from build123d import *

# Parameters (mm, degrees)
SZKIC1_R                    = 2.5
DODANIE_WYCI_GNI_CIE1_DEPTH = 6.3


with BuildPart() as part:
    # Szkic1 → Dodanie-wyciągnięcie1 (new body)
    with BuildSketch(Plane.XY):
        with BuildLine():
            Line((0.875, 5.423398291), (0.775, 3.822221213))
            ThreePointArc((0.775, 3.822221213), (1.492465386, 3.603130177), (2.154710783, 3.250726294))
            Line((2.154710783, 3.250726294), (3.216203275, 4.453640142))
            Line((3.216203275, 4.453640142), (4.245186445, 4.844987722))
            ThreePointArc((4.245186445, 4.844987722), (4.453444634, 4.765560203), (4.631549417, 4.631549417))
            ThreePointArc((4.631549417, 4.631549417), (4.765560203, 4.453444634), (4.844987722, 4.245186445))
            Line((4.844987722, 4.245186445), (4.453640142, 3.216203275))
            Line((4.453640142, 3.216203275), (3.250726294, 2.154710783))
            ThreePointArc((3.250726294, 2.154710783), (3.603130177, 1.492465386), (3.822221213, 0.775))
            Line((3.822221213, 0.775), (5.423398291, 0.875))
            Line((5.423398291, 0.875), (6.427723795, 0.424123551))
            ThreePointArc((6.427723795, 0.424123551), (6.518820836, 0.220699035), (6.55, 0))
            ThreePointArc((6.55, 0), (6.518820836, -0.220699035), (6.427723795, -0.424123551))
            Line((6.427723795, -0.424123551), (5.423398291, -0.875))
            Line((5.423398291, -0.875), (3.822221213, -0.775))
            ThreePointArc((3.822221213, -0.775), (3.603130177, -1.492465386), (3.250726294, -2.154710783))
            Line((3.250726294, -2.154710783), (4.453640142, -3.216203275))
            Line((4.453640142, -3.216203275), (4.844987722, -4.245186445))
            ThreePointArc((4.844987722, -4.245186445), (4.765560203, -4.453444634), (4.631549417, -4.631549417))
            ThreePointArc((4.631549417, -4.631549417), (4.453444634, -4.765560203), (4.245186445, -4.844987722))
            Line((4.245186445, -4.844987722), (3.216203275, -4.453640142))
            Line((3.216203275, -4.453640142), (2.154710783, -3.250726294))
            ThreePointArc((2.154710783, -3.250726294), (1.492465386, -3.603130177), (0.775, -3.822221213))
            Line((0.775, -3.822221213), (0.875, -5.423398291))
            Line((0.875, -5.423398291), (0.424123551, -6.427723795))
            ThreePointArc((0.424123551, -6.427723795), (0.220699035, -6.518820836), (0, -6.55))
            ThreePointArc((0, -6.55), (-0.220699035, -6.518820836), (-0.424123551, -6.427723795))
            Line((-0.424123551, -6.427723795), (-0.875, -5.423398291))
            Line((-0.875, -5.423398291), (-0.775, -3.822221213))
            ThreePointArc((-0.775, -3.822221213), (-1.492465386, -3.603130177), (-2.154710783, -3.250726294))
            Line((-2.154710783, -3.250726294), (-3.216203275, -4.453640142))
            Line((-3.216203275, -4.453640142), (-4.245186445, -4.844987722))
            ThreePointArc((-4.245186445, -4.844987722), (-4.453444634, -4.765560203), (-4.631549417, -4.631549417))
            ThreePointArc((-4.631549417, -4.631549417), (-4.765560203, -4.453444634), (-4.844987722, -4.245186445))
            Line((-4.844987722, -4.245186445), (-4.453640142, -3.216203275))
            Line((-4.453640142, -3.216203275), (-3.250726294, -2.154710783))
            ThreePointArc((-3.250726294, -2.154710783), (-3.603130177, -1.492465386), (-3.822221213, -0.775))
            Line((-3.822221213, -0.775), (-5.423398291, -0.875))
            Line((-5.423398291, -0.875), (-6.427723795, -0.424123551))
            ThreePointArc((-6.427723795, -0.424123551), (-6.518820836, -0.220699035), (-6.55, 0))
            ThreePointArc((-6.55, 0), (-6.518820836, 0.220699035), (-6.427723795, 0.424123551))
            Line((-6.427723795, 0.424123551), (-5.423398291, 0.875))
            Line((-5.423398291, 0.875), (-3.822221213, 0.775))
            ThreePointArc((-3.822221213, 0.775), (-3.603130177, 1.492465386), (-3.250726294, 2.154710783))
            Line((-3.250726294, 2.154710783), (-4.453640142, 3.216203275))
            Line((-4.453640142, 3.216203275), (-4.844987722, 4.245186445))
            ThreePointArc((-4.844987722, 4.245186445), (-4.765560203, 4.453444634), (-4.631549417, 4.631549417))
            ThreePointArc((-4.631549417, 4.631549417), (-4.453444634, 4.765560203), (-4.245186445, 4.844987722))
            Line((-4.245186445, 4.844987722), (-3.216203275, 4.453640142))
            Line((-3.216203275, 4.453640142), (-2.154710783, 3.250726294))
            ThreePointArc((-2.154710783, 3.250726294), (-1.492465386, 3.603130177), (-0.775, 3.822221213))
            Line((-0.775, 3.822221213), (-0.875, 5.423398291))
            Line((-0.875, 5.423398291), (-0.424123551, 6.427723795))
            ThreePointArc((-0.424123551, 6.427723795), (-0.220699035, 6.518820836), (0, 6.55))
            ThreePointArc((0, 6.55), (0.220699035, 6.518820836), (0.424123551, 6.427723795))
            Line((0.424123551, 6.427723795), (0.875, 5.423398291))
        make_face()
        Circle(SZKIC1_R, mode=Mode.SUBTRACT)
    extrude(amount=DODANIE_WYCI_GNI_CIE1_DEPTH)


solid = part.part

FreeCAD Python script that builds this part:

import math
import FreeCAD as App
import Part
import Sketcher
Q = App.Units.Quantity

doc = App.newDocument("Part")
body = doc.addObject("PartDesign::Body", "Body")

sketch1 = doc.addObject("Sketcher::SketchObject", "Sketch")
body.addObject(sketch1)
sketch1.AttachmentSupport = (doc.XY_Plane, [""])
sketch1.MapMode = "FlatFace"
sketch1.addGeometry([
    Part.LineSegment(App.Vector(0.78, 3.82, 0), App.Vector(0.88, 5.42, 0)),
    Part.LineSegment(App.Vector(0.88, 5.42, 0), App.Vector(0.42, 6.43, 0)),
    Part.ArcOfCircle(Part.Circle(App.Vector(0, 5.75, 0), App.Vector(0, 0, 1), 0.8), math.radians(58), math.radians(90)),
    Part.ArcOfCircle(Part.Circle(App.Vector(0, 5.75, 0), App.Vector(0, 0, 1), 0.8), math.radians(90), math.radians(122)),
    Part.LineSegment(App.Vector(-0.42, 6.43, 0), App.Vector(-0.88, 5.42, 0)),
    Part.LineSegment(App.Vector(-0.88, 5.42, 0), App.Vector(-0.78, 3.82, 0)),
    Part.ArcOfCircle(Part.Circle(App.Vector(0, 0, 0), App.Vector(0, 0, 1), 3.9), math.radians(101), math.radians(124)),
    Part.LineSegment(App.Vector(-2.15, 3.25, 0), App.Vector(-3.22, 4.45, 0)),
    Part.LineSegment(App.Vector(-3.22, 4.45, 0), App.Vector(-4.25, 4.84, 0)),
    Part.ArcOfCircle(Part.Circle(App.Vector(-4.07, 4.07, 0), App.Vector(0, 0, 1), 0.8), math.radians(103), math.radians(135)),
    Part.ArcOfCircle(Part.Circle(App.Vector(-4.07, 4.07, 0), App.Vector(0, 0, 1), 0.8), math.radians(135), math.radians(167)),
    Part.LineSegment(App.Vector(-4.84, 4.25, 0), App.Vector(-4.45, 3.22, 0)),
    Part.LineSegment(App.Vector(-4.45, 3.22, 0), App.Vector(-3.25, 2.15, 0)),
    Part.ArcOfCircle(Part.Circle(App.Vector(0, 0, 0), App.Vector(0, 0, 1), 3.9), math.radians(146), math.radians(169)),
    Part.LineSegment(App.Vector(-3.82, 0.78, 0), App.Vector(-5.42, 0.88, 0)),
    Part.LineSegment(App.Vector(-5.42, 0.88, 0), App.Vector(-6.43, 0.42, 0)),
    Part.ArcOfCircle(Part.Circle(App.Vector(-5.75, 0, 0), App.Vector(0, 0, 1), 0.8), math.radians(148), math.radians(180)),
    Part.ArcOfCircle(Part.Circle(App.Vector(-5.75, 0, 0), App.Vector(0, 0, 1), 0.8), math.radians(-180), math.radians(-148)),
    Part.LineSegment(App.Vector(-6.43, -0.42, 0), App.Vector(-5.42, -0.88, 0)),
    Part.LineSegment(App.Vector(-5.42, -0.88, 0), App.Vector(-3.82, -0.78, 0)),
    Part.ArcOfCircle(Part.Circle(App.Vector(0, 0, 0), App.Vector(0, 0, 1), 3.9), math.radians(-169), math.radians(-146)),
    Part.LineSegment(App.Vector(-3.25, -2.15, 0), App.Vector(-4.45, -3.22, 0)),
    Part.LineSegment(App.Vector(-4.45, -3.22, 0), App.Vector(-4.84, -4.25, 0)),
    Part.ArcOfCircle(Part.Circle(App.Vector(-4.07, -4.07, 0), App.Vector(0, 0, 1), 0.8), math.radians(-167), math.radians(-135)),
    Part.ArcOfCircle(Part.Circle(App.Vector(-4.07, -4.07, 0), App.Vector(0, 0, 1), 0.8), math.radians(-135), math.radians(-103)),
    Part.LineSegment(App.Vector(-4.25, -4.84, 0), App.Vector(-3.22, -4.45, 0)),
    Part.LineSegment(App.Vector(-3.22, -4.45, 0), App.Vector(-2.15, -3.25, 0)),
    Part.ArcOfCircle(Part.Circle(App.Vector(0, 0, 0), App.Vector(0, 0, 1), 3.9), math.radians(-124), math.radians(-101)),
    Part.LineSegment(App.Vector(-0.78, -3.82, 0), App.Vector(-0.88, -5.42, 0)),
    Part.LineSegment(App.Vector(-0.88, -5.42, 0), App.Vector(-0.42, -6.43, 0)),
    Part.ArcOfCircle(Part.Circle(App.Vector(0, -5.75, 0), App.Vector(0, 0, 1), 0.8), math.radians(-122), math.radians(-90)),
    Part.ArcOfCircle(Part.Circle(App.Vector(0, -5.75, 0), App.Vector(0, 0, 1), 0.8), math.radians(-90), math.radians(-58)),
    Part.LineSegment(App.Vector(0.42, -6.43, 0), App.Vector(0.88, -5.42, 0)),
    Part.LineSegment(App.Vector(0.88, -5.42, 0), App.Vector(0.78, -3.82, 0)),
    Part.ArcOfCircle(Part.Circle(App.Vector(0, 0, 0), App.Vector(0, 0, 1), 3.9), math.radians(-79), math.radians(-56)),
    Part.LineSegment(App.Vector(2.15, -3.25, 0), App.Vector(3.22, -4.45, 0)),
    Part.LineSegment(App.Vector(3.22, -4.45, 0), App.Vector(4.25, -4.84, 0)),
    Part.ArcOfCircle(Part.Circle(App.Vector(4.07, -4.07, 0), App.Vector(0, 0, 1), 0.8), math.radians(-77), math.radians(-45)),
    Part.ArcOfCircle(Part.Circle(App.Vector(4.07, -4.07, 0), App.Vector(0, 0, 1), 0.8), math.radians(-45), math.radians(-13)),
    Part.LineSegment(App.Vector(4.84, -4.25, 0), App.Vector(4.45, -3.22, 0)),
    Part.LineSegment(App.Vector(4.45, -3.22, 0), App.Vector(3.25, -2.15, 0)),
    Part.ArcOfCircle(Part.Circle(App.Vector(0, 0, 0), App.Vector(0, 0, 1), 3.9), math.radians(-34), math.radians(-11)),
    Part.LineSegment(App.Vector(3.82, -0.78, 0), App.Vector(5.42, -0.88, 0)),
    Part.LineSegment(App.Vector(5.42, -0.88, 0), App.Vector(6.43, -0.42, 0)),
    Part.ArcOfCircle(Part.Circle(App.Vector(5.75, 0, 0), App.Vector(0, 0, 1), 0.8), math.radians(-32), math.radians(0)),
    Part.ArcOfCircle(Part.Circle(App.Vector(5.75, 0, 0), App.Vector(0, 0, 1), 0.8), math.radians(0), math.radians(32)),
    Part.LineSegment(App.Vector(6.43, 0.42, 0), App.Vector(5.42, 0.88, 0)),
    Part.LineSegment(App.Vector(5.42, 0.88, 0), App.Vector(3.82, 0.78, 0)),
    Part.ArcOfCircle(Part.Circle(App.Vector(0, 0, 0), App.Vector(0, 0, 1), 3.9), math.radians(11), math.radians(34)),
    Part.LineSegment(App.Vector(3.25, 2.15, 0), App.Vector(4.45, 3.22, 0)),
    Part.LineSegment(App.Vector(4.45, 3.22, 0), App.Vector(4.84, 4.25, 0)),
    Part.ArcOfCircle(Part.Circle(App.Vector(4.07, 4.07, 0), App.Vector(0, 0, 1), 0.8), math.radians(13), math.radians(45)),
    Part.ArcOfCircle(Part.Circle(App.Vector(4.07, 4.07, 0), App.Vector(0, 0, 1), 0.8), math.radians(45), math.radians(77)),
    Part.LineSegment(App.Vector(4.25, 4.84, 0), App.Vector(3.22, 4.45, 0)),
    Part.LineSegment(App.Vector(3.22, 4.45, 0), App.Vector(2.15, 3.25, 0)),
    Part.ArcOfCircle(Part.Circle(App.Vector(0, 0, 0), App.Vector(0, 0, 1), 3.9), math.radians(56), math.radians(79)),
    Part.Circle(App.Vector(0, 0, 0), App.Vector(0, 0, 1), 2.5),
], False)
sketch1.addConstraint([
    Sketcher.Constraint("Coincident", 0, 2, 1, 1),
    Sketcher.Constraint("Coincident", 1, 2, 2, 1),
    Sketcher.Constraint("Tangent", 2, 2, 3, 1),
    Sketcher.Constraint("Coincident", 3, 2, 4, 1),
    Sketcher.Constraint("Coincident", 4, 2, 5, 1),
    Sketcher.Constraint("Coincident", 5, 2, 6, 1),
    Sketcher.Constraint("Coincident", 6, 2, 7, 1),
    Sketcher.Constraint("Coincident", 7, 2, 8, 1),
    Sketcher.Constraint("Coincident", 8, 2, 9, 1),
    Sketcher.Constraint("Tangent", 9, 2, 10, 1),
    Sketcher.Constraint("Coincident", 10, 2, 11, 1),
    Sketcher.Constraint("Coincident", 11, 2, 12, 1),
    Sketcher.Constraint("Coincident", 12, 2, 13, 1),
    Sketcher.Constraint("Coincident", 13, 2, 14, 1),
    Sketcher.Constraint("Coincident", 14, 2, 15, 1),
    Sketcher.Constraint("Coincident", 15, 2, 16, 1),
    Sketcher.Constraint("Tangent", 16, 2, 17, 1),
    Sketcher.Constraint("Coincident", 17, 2, 18, 1),
    Sketcher.Constraint("Coincident", 18, 2, 19, 1),
    Sketcher.Constraint("Coincident", 19, 2, 20, 1),
    Sketcher.Constraint("Coincident", 20, 2, 21, 1),
    Sketcher.Constraint("Coincident", 21, 2, 22, 1),
    Sketcher.Constraint("Coincident", 22, 2, 23, 1),
    Sketcher.Constraint("Tangent", 23, 2, 24, 1),
    Sketcher.Constraint("Coincident", 24, 2, 25, 1),
    Sketcher.Constraint("Coincident", 25, 2, 26, 1),
    Sketcher.Constraint("Coincident", 26, 2, 27, 1),
    Sketcher.Constraint("Coincident", 27, 2, 28, 1),
    Sketcher.Constraint("Coincident", 28, 2, 29, 1),
    Sketcher.Constraint("Coincident", 29, 2, 30, 1),
    Sketcher.Constraint("Tangent", 30, 2, 31, 1),
    Sketcher.Constraint("Coincident", 31, 2, 32, 1),
    Sketcher.Constraint("Coincident", 32, 2, 33, 1),
    Sketcher.Constraint("Coincident", 33, 2, 34, 1),
    Sketcher.Constraint("Coincident", 34, 2, 35, 1),
    Sketcher.Constraint("Coincident", 35, 2, 36, 1),
    Sketcher.Constraint("Coincident", 36, 2, 37, 1),
    Sketcher.Constraint("Tangent", 37, 2, 38, 1),
    Sketcher.Constraint("Coincident", 38, 2, 39, 1),
    Sketcher.Constraint("Coincident", 39, 2, 40, 1),
    Sketcher.Constraint("Coincident", 40, 2, 41, 1),
    Sketcher.Constraint("Coincident", 41, 2, 42, 1),
    Sketcher.Constraint("Coincident", 42, 2, 43, 1),
    Sketcher.Constraint("Coincident", 43, 2, 44, 1),
    Sketcher.Constraint("Tangent", 44, 2, 45, 1),
    Sketcher.Constraint("Coincident", 45, 2, 46, 1),
    Sketcher.Constraint("Coincident", 46, 2, 47, 1),
    Sketcher.Constraint("Coincident", 47, 2, 48, 1),
    Sketcher.Constraint("Coincident", 48, 2, 49, 1),
    Sketcher.Constraint("Coincident", 49, 2, 50, 1),
    Sketcher.Constraint("Coincident", 50, 2, 51, 1),
    Sketcher.Constraint("Tangent", 51, 2, 52, 1),
    Sketcher.Constraint("Coincident", 52, 2, 53, 1),
    Sketcher.Constraint("Coincident", 53, 2, 54, 1),
    Sketcher.Constraint("Coincident", 54, 2, 55, 1),
    Sketcher.Constraint("Coincident", 55, 2, 0, 1),
    Sketcher.Constraint("Coincident", 6, 3, -1, 1),
    Sketcher.Constraint("Coincident", 13, 3, -1, 1),
    Sketcher.Constraint("Coincident", 20, 3, -1, 1),
    Sketcher.Constraint("Coincident", 27, 3, -1, 1),
    Sketcher.Constraint("Coincident", 34, 3, -1, 1),
    Sketcher.Constraint("Coincident", 41, 3, -1, 1),
    Sketcher.Constraint("Coincident", 48, 3, -1, 1),
    Sketcher.Constraint("Coincident", 55, 3, -1, 1),
    Sketcher.Constraint("Coincident", 56, 3, -1, 1),
    Sketcher.Constraint("Equal", 2, 3),
    Sketcher.Constraint("Equal", 3, 9),
    Sketcher.Constraint("Equal", 9, 10),
    Sketcher.Constraint("Equal", 6, 13),
    Sketcher.Constraint("Equal", 10, 16),
    Sketcher.Constraint("Equal", 16, 17),
    Sketcher.Constraint("Equal", 13, 20),
    Sketcher.Constraint("Equal", 17, 23),
    Sketcher.Constraint("Equal", 23, 24),
    Sketcher.Constraint("Equal", 20, 27),
    Sketcher.Constraint("Equal", 24, 30),
    Sketcher.Constraint("Equal", 30, 31),
    Sketcher.Constraint("Equal", 27, 34),
    Sketcher.Constraint("Equal", 31, 37),
    Sketcher.Constraint("Equal", 37, 38),
    Sketcher.Constraint("Equal", 34, 41),
    Sketcher.Constraint("Equal", 38, 44),
    Sketcher.Constraint("Equal", 44, 45),
    Sketcher.Constraint("Equal", 41, 48),
    Sketcher.Constraint("Equal", 45, 51),
    Sketcher.Constraint("Equal", 51, 52),
    Sketcher.Constraint("Equal", 48, 55),
    Sketcher.Constraint("Symmetric", 2, 3, 30, 3, -1, 1),
    Sketcher.Constraint("Symmetric", 9, 3, 37, 3, -1, 1),
    Sketcher.Constraint("Symmetric", 16, 3, 44, 3, -1, 1),
    Sketcher.Constraint("Symmetric", 23, 3, 51, 3, -1, 1),
    Sketcher.Constraint("Symmetric", 0, 2, 28, 2, -1, 1),
    Sketcher.Constraint("Symmetric", 4, 2, 32, 2, -1, 1),
    Sketcher.Constraint("Symmetric", 7, 2, 35, 2, -1, 1),
    Sketcher.Constraint("Symmetric", 11, 2, 39, 2, -1, 1),
    Sketcher.Constraint("Symmetric", 14, 2, 42, 2, -1, 1),
    Sketcher.Constraint("Symmetric", 18, 2, 46, 2, -1, 1),
    Sketcher.Constraint("Symmetric", 21, 2, 49, 2, -1, 1),
    Sketcher.Constraint("Symmetric", 25, 2, 53, 2, -1, 1),
    Sketcher.Constraint("Symmetric", 23, 3, 37, 3, -2),
    Sketcher.Constraint("Symmetric", 1, 2, 3, 2, -2),
    Sketcher.Constraint("Symmetric", 0, 2, 4, 2, -2),
    Sketcher.Constraint("Symmetric", 25, 2, 35, 2, -2),
    Sketcher.Constraint("Symmetric", 21, 2, 39, 2, -2),
    Sketcher.Constraint("Symmetric", 18, 2, 42, 2, -2),
    Sketcher.Constraint("Symmetric", 17, 2, 43, 2, -2),
    Sketcher.Constraint("PointOnObject", 2, 2, -2),
    Sketcher.Constraint("PointOnObject", 16, 2, -1),
    Sketcher.Constraint("PointOnObject", 30, 2, -2),
    Sketcher.Constraint("PointOnObject", 44, 2, -1),
    Sketcher.Constraint("Perpendicular", 0, 14),
    Sketcher.Constraint("Perpendicular", 1, 15),
    Sketcher.Constraint("Perpendicular", 4, 18),
    Sketcher.Constraint("Perpendicular", 5, 19),
    Sketcher.Constraint("Perpendicular", 7, 21),
    Sketcher.Constraint("Perpendicular", 8, 22),
    Sketcher.Constraint("Perpendicular", 11, 25),
    Sketcher.Constraint("Perpendicular", 12, 26),
    Sketcher.Constraint("Perpendicular", 14, 28),
    Sketcher.Constraint("Perpendicular", 15, 29),
    Sketcher.Constraint("Perpendicular", 18, 32),
    Sketcher.Constraint("Perpendicular", 19, 33),
    Sketcher.Constraint("Perpendicular", 21, 35),
    Sketcher.Constraint("Perpendicular", 22, 36),
    Sketcher.Constraint("Perpendicular", 25, 39),
    Sketcher.Constraint("Perpendicular", 26, 40),
    Sketcher.Constraint("Perpendicular", 28, 42),
    Sketcher.Constraint("Perpendicular", 32, 46),
    Sketcher.Constraint("Perpendicular", 33, 47),
    Sketcher.Constraint("Perpendicular", 35, 49),
    Sketcher.Constraint("Perpendicular", 36, 50),
    Sketcher.Constraint("Perpendicular", 39, 53),
    Sketcher.Constraint("Perpendicular", 40, 54),
    Sketcher.Constraint("Horizontal", 27, 2, 33, 2),
    Sketcher.Constraint("Horizontal", 26, 2, 34, 2),
    Sketcher.Constraint("Horizontal", 24, 2, 36, 2),
    Sketcher.Constraint("Horizontal", 23, 2, 37, 2),
    Sketcher.Constraint("Horizontal", 9, 2, 51, 2),
    Sketcher.Constraint("Vertical", 9, 2, 23, 2),
    Sketcher.Constraint("Equal", 5, 7),
    Sketcher.Constraint("Equal", 4, 8),
    Sketcher.Constraint("Equal", 8, 11),
    Sketcher.Constraint("Equal", 7, 12),
    Sketcher.Constraint("Equal", 12, 14),
    Sketcher.Constraint("Equal", 11, 15),
    Sketcher.Constraint("Diameter", 56, Q("5 mm")),
    Sketcher.Constraint("Radius", 6, Q("3.9 mm")),
    Sketcher.Constraint("DistanceY", -1, 1, 2, 2, Q("6.55 mm")),
    Sketcher.Constraint("DistanceX", 16, 2, -1, 1, Q("6.55 mm")),
    Sketcher.Constraint("Radius", 2, Q("0.796689 mm")),
    Sketcher.Constraint("DistanceX", -1, 1, 0, 2, Q("0.875 mm")),
    Sketcher.Constraint("DistanceX", 5, 2, -1, 1, Q("0.775 mm")),
    Sketcher.Constraint("DistanceY", -1, 1, 0, 2, Q("5.423398 mm")),
    Sketcher.Constraint("Distance", 1, Q("1.10089 mm")),
    Sketcher.Constraint("DistanceX", 6, 2, -1, 1, Q("2.154711 mm")),
    Sketcher.Constraint("DistanceY", -1, 1, 7, 2, Q("4.45364 mm")),
    Sketcher.Constraint("DistanceX", 9, 2, -1, 1, Q("4.631549 mm")),
    Sketcher.Constraint("DistanceY", -1, 1, 9, 2, Q("4.631549 mm")),
    Sketcher.Constraint("DistanceX", 11, 2, -1, 1, Q("4.45364 mm")),
])
pad1 = doc.addObject("PartDesign::Pad", "Pad")
body.addObject(pad1)
pad1.Profile = sketch1
pad1.Length = 6.3

doc.recompute()
